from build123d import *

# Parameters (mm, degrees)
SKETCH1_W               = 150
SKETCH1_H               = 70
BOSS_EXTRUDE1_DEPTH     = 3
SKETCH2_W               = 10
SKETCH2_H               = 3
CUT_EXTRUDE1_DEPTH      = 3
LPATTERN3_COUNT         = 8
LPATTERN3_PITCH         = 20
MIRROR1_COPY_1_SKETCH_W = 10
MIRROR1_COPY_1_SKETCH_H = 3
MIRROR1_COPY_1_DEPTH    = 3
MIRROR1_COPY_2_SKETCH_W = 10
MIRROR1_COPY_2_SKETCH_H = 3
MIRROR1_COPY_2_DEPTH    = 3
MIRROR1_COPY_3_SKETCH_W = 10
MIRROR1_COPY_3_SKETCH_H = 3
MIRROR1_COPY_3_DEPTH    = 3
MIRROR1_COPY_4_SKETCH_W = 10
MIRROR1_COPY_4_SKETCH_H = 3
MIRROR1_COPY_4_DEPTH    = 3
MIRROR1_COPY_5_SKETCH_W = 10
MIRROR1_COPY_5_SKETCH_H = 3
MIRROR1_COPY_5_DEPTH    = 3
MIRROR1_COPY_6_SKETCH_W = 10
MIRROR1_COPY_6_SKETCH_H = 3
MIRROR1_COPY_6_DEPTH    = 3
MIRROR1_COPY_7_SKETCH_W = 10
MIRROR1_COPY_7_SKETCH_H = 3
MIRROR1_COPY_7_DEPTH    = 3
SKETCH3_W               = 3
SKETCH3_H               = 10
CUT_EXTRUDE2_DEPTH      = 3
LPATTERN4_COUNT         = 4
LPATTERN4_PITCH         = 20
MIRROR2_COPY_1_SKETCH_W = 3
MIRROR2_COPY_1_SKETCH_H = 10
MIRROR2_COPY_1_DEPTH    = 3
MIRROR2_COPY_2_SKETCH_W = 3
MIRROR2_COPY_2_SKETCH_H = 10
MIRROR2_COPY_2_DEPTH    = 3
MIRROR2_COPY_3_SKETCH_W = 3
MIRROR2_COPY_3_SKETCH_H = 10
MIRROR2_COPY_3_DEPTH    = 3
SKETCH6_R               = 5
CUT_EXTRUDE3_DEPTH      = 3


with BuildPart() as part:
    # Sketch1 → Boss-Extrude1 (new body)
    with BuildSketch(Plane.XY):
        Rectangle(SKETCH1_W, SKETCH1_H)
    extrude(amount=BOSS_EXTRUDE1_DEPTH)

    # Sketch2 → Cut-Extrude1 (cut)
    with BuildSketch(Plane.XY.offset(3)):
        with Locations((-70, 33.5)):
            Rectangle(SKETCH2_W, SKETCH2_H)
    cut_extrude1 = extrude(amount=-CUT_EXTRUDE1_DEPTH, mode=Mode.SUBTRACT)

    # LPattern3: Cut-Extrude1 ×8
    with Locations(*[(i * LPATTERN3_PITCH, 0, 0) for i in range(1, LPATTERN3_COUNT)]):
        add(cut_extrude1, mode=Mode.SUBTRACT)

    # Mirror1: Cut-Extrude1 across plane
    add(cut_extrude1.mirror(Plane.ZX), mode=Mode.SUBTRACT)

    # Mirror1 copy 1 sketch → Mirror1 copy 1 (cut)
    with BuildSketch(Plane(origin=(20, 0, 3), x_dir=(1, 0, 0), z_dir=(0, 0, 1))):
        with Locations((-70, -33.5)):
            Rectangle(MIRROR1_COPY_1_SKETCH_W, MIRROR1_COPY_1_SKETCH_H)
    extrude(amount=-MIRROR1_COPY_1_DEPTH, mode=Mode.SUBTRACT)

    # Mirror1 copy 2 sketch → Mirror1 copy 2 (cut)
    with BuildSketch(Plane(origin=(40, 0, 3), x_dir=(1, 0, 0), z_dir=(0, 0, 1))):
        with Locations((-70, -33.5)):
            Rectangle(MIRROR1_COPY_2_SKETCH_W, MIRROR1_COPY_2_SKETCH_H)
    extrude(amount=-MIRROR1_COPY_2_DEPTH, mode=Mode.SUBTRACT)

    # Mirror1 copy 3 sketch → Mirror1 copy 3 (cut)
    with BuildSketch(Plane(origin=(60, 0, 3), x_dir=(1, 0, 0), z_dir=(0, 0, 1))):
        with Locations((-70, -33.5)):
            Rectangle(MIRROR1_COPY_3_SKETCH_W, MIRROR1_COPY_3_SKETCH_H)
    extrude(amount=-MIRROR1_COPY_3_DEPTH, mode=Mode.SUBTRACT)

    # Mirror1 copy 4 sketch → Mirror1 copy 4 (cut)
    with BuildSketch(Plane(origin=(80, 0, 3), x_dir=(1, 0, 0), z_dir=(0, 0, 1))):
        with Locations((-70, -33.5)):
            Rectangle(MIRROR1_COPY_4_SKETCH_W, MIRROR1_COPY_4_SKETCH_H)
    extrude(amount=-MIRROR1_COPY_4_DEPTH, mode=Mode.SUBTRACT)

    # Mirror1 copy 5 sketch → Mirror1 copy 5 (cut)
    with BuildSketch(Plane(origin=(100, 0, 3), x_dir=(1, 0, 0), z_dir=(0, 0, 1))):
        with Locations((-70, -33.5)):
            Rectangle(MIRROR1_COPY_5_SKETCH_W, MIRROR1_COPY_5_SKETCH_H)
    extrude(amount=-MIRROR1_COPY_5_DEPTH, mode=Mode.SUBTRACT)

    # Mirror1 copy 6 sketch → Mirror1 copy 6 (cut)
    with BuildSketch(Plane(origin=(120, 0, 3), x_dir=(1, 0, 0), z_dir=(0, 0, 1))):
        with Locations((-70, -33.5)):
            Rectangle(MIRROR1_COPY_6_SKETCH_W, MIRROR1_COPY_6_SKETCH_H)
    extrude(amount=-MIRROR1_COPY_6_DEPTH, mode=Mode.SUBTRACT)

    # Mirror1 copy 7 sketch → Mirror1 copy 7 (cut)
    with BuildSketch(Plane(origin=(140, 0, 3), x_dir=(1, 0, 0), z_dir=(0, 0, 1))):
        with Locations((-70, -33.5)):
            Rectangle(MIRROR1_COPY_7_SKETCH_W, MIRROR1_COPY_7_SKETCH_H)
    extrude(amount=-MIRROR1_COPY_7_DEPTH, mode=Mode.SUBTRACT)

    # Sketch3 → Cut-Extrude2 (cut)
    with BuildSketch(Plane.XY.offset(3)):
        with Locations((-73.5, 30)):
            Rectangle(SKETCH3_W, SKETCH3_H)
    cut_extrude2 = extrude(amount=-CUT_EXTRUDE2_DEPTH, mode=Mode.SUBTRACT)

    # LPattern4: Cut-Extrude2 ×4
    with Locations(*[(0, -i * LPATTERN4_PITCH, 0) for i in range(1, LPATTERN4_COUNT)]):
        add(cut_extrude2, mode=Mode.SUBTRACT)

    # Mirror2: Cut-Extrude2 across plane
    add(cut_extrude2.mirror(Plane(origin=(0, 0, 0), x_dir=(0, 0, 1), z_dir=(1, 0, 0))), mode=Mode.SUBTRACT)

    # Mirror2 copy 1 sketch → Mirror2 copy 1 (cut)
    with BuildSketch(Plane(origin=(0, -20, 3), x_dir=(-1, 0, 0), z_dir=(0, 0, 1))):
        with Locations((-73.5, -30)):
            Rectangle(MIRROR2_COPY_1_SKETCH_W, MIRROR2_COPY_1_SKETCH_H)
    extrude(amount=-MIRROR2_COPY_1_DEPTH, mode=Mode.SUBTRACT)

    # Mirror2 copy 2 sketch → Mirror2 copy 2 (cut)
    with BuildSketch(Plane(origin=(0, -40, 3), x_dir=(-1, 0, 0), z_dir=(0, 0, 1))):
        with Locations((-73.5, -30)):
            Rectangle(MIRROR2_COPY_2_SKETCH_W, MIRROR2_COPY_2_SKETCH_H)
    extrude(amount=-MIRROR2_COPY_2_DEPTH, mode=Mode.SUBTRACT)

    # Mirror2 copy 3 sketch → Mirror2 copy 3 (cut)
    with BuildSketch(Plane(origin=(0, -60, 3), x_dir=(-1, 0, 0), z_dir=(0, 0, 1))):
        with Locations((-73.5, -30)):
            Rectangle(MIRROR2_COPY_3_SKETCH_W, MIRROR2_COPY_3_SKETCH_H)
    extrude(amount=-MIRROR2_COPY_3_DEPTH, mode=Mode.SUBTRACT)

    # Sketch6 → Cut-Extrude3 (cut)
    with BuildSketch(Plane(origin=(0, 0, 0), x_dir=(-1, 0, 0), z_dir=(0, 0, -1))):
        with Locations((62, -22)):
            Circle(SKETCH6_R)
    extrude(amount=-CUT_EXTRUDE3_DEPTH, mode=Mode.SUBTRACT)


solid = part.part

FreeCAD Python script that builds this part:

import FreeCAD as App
import Part
import Sketcher
Q = App.Units.Quantity


def add_polygon(sketch, points):
    """Adds a closed chain of lines whose ends are joined by coincident constraints."""
    first, n = sketch.GeometryCount, len(points)
    for a, b in zip(points, points[1:] + points[:1]):
        sketch.addGeometry(Part.LineSegment(App.Vector(*a, 0), App.Vector(*b, 0)), False)
    for i in range(n):
        sketch.addConstraint(Sketcher.Constraint("Coincident", first + i, 2, first + (i + 1) % n, 1))

doc = App.newDocument("Part")
body = doc.addObject("PartDesign::Body", "Body")

sketch1 = body.newObject("Sketcher::SketchObject", "Sketch")
sketch1.AttachmentSupport = (doc.getObject("XY_Plane"), [""])
sketch1.MapMode = "FlatFace"
add_polygon(sketch1, [(-75, 35), (-75, -35), (75, -35), (75, 35)])
sketch1.addConstraint([
    Sketcher.Constraint("Vertical", 0),
    Sketcher.Constraint("Horizontal", 1),
    Sketcher.Constraint("Vertical", 2),
    Sketcher.Constraint("Horizontal", 3),
    Sketcher.Constraint("Symmetric", 0, 2, 2, 2, -1, 1),
    Sketcher.Constraint("DistanceX", 1, 1, 1, 2, Q("150 mm")),
    Sketcher.Constraint("DistanceY", 0, 2, 0, 1, Q("70 mm")),
])
pad1 = body.newObject("PartDesign::Pad", "Pad")
pad1.Profile = sketch1
pad1.Length = 3

sketch2 = body.newObject("Sketcher::SketchObject", "Sketch001")
sketch2.AttachmentSupport = (doc.getObject("XY_Plane"), [""])
sketch2.MapMode = "FlatFace"
sketch2.AttachmentOffset = App.Placement(App.Vector(0, 0, 3), App.Rotation())
add_polygon(sketch2, [(-75, 35), (-75, 32), (-65, 32), (-65, 35)])
sketch2.addConstraint([
    Sketcher.Constraint("Vertical", 0),
    Sketcher.Constraint("Horizontal", 1),
    Sketcher.Constraint("Vertical", 2),
    Sketcher.Constraint("Horizontal", 3),
    Sketcher.Constraint("DistanceX", 1, 1, 1, 2, Q("10 mm")),
    Sketcher.Constraint("DistanceY", 0, 2, 0, 1, Q("3 mm")),
    Sketcher.Constraint("DistanceX", 0, 2, -1, 1, Q("75 mm")),
    Sketcher.Constraint("DistanceY", -1, 1, 0, 2, Q("32 mm")),
])
pocket1 = body.newObject("PartDesign::Pocket", "Pocket")
pocket1.Profile = sketch2
pocket1.Length = 3
doc.recompute()

linearpattern = body.newObject("PartDesign::LinearPattern", "LinearPattern")
linearpattern.Originals = [pocket1]
linearpattern.Direction = (doc.getObject("X_Axis"), [""])
linearpattern.Mode = "offset"
linearpattern.Offset = 20
linearpattern.Occurrences = 8
body.Tip = linearpattern
doc.recompute()

mirrored = body.newObject("PartDesign::Mirrored", "Mirrored")
mirrored.Originals = [pocket1]
mirrored.MirrorPlane = (doc.getObject("XZ_Plane"), [""])
body.Tip = mirrored

sketch3 = body.newObject("Sketcher::SketchObject", "Sketch002")
sketch3.AttachmentSupport = (doc.getObject("XY_Plane"), [""])
sketch3.MapMode = "FlatFace"
sketch3.AttachmentOffset = App.Placement(App.Vector(0, 0, 3), App.Rotation())
add_polygon(sketch3, [(-55, -32), (-55, -35), (-45, -35), (-45, -32)])
sketch3.addConstraint([
    Sketcher.Constraint("Vertical", 0),
    Sketcher.Constraint("Horizontal", 1),
    Sketcher.Constraint("Vertical", 2),
    Sketcher.Constraint("Horizontal", 3),
    Sketcher.Constraint("DistanceX", 1, 1, 1, 2, Q("10 mm")),
    Sketcher.Constraint("DistanceY", 0, 2, 0, 1, Q("3 mm")),
    Sketcher.Constraint("DistanceX", 0, 2, -1, 1, Q("55 mm")),
    Sketcher.Constraint("DistanceY", 0, 2, -1, 1, Q("35 mm")),
])
pocket2 = body.newObject("PartDesign::Pocket", "Pocket001")
pocket2.Profile = sketch3
pocket2.Length = 3

sketch4 = body.newObject("Sketcher::SketchObject", "Sketch003")
sketch4.AttachmentSupport = (doc.getObject("XY_Plane"), [""])
sketch4.MapMode = "FlatFace"
sketch4.AttachmentOffset = App.Placement(App.Vector(0, 0, 3), App.Rotation())
add_polygon(sketch4, [(-35, -32), (-35, -35), (-25, -35), (-25, -32)])
sketch4.addConstraint([
    Sketcher.Constraint("Vertical", 0),
    Sketcher.Constraint("Horizontal", 1),
    Sketcher.Constraint("Vertical", 2),
    Sketcher.Constraint("Horizontal", 3),
    Sketcher.Constraint("DistanceX", 1, 1, 1, 2, Q("10 mm")),
    Sketcher.Constraint("DistanceY", 0, 2, 0, 1, Q("3 mm")),
    Sketcher.Constraint("DistanceX", 0, 2, -1, 1, Q("35 mm")),
    Sketcher.Constraint("DistanceY", 0, 2, -1, 1, Q("35 mm")),
])
pocket3 = body.newObject("PartDesign::Pocket", "Pocket002")
pocket3.Profile = sketch4
pocket3.Length = 3

sketch5 = body.newObject("Sketcher::SketchObject", "Sketch004")
sketch5.AttachmentSupport = (doc.getObject("XY_Plane"), [""])
sketch5.MapMode = "FlatFace"
sketch5.AttachmentOffset = App.Placement(App.Vector(0, 0, 3), App.Rotation())
add_polygon(sketch5, [(-15, -32), (-15, -35), (-5, -35), (-5, -32)])
sketch5.addConstraint([
    Sketcher.Constraint("Vertical", 0),
    Sketcher.Constraint("Horizontal", 1),
    Sketcher.Constraint("Vertical", 2),
    Sketcher.Constraint("Horizontal", 3),
    Sketcher.Constraint("DistanceX", 1, 1, 1, 2, Q("10 mm")),
    Sketcher.Constraint("DistanceY", 0, 2, 0, 1, Q("3 mm")),
    Sketcher.Constraint("DistanceX", 0, 2, -1, 1, Q("15 mm")),
    Sketcher.Constraint("DistanceY", 0, 2, -1, 1, Q("35 mm")),
])
pocket4 = body.newObject("PartDesign::Pocket", "Pocket003")
pocket4.Profile = sketch5
pocket4.Length = 3

sketch6 = body.newObject("Sketcher::SketchObject", "Sketch005")
sketch6.AttachmentSupport = (doc.getObject("XY_Plane"), [""])
sketch6.MapMode = "FlatFace"
sketch6.AttachmentOffset = App.Placement(App.Vector(0, 0, 3), App.Rotation())
add_polygon(sketch6, [(5, -32), (5, -35), (15, -35), (15, -32)])
sketch6.addConstraint([
    Sketcher.Constraint("Vertical", 0),
    Sketcher.Constraint("Horizontal", 1),
    Sketcher.Constraint("Vertical", 2),
    Sketcher.Constraint("Horizontal", 3),
    Sketcher.Constraint("DistanceX", 1, 1, 1, 2, Q("10 mm")),
    Sketcher.Constraint("DistanceY", 0, 2, 0, 1, Q("3 mm")),
    Sketcher.Constraint("DistanceX", -1, 1, 0, 2, Q("5 mm")),
    Sketcher.Constraint("DistanceY", 0, 2, -1, 1, Q("35 mm")),
])
pocket5 = body.newObject("PartDesign::Pocket", "Pocket004")
pocket5.Profile = sketch6
pocket5.Length = 3

sketch7 = body.newObject("Sketcher::SketchObject", "Sketch006")
sketch7.AttachmentSupport = (doc.getObject("XY_Plane"), [""])
sketch7.MapMode = "FlatFace"
sketch7.AttachmentOffset = App.Placement(App.Vector(0, 0, 3), App.Rotation())
add_polygon(sketch7, [(25, -32), (25, -35), (35, -35), (35, -32)])
sketch7.addConstraint([
    Sketcher.Constraint("Vertical", 0),
    Sketcher.Constraint("Horizontal", 1),
    Sketcher.Constraint("Vertical", 2),
    Sketcher.Constraint("Horizontal", 3),
    Sketcher.Constraint("DistanceX", 1, 1, 1, 2, Q("10 mm")),
    Sketcher.Constraint("DistanceY", 0, 2, 0, 1, Q("3 mm")),
    Sketcher.Constraint("DistanceX", -1, 1, 0, 2, Q("25 mm")),
    Sketcher.Constraint("DistanceY", 0, 2, -1, 1, Q("35 mm")),
])
pocket6 = body.newObject("PartDesign::Pocket", "Pocket005")
pocket6.Profile = sketch7
pocket6.Length = 3

sketch8 = body.newObject("Sketcher::SketchObject", "Sketch007")
sketch8.AttachmentSupport = (doc.getObject("XY_Plane"), [""])
sketch8.MapMode = "FlatFace"
sketch8.AttachmentOffset = App.Placement(App.Vector(0, 0, 3), App.Rotation())
add_polygon(sketch8, [(45, -32), (45, -35), (55, -35), (55, -32)])
sketch8.addConstraint([
    Sketcher.Constraint("Vertical", 0),
    Sketcher.Constraint("Horizontal", 1),
    Sketcher.Constraint("Vertical", 2),
    Sketcher.Constraint("Horizontal", 3),
    Sketcher.Constraint("DistanceX", 1, 1, 1, 2, Q("10 mm")),
    Sketcher.Constraint("DistanceY", 0, 2, 0, 1, Q("3 mm")),
    Sketcher.Constraint("DistanceX", -1, 1, 0, 2, Q("45 mm")),
    Sketcher.Constraint("DistanceY", 0, 2, -1, 1, Q("35 mm")),
])
pocket7 = body.newObject("PartDesign::Pocket", "Pocket006")
pocket7.Profile = sketch8
pocket7.Length = 3

sketch9 = body.newObject("Sketcher::SketchObject", "Sketch008")
sketch9.AttachmentSupport = (doc.getObject("XY_Plane"), [""])
sketch9.MapMode = "FlatFace"
sketch9.AttachmentOffset = App.Placement(App.Vector(0, 0, 3), App.Rotation())
add_polygon(sketch9, [(65, -32), (65, -35), (75, -35), (75, -32)])
sketch9.addConstraint([
    Sketcher.Constraint("Vertical", 0),
    Sketcher.Constraint("Horizontal", 1),
    Sketcher.Constraint("Vertical", 2),
    Sketcher.Constraint("Horizontal", 3),
    Sketcher.Constraint("DistanceX", 1, 1, 1, 2, Q("10 mm")),
    Sketcher.Constraint("DistanceY", 0, 2, 0, 1, Q("3 mm")),
    Sketcher.Constraint("DistanceX", -1, 1, 0, 2, Q("65 mm")),
    Sketcher.Constraint("DistanceY", 0, 2, -1, 1, Q("35 mm")),
])
pocket8 = body.newObject("PartDesign::Pocket", "Pocket007")
pocket8.Profile = sketch9
pocket8.Length = 3

sketch10 = body.newObject("Sketcher::SketchObject", "Sketch009")
sketch10.AttachmentSupport = (doc.getObject("XY_Plane"), [""])
sketch10.MapMode = "FlatFace"
sketch10.AttachmentOffset = App.Placement(App.Vector(0, 0, 3), App.Rotation())
add_polygon(sketch10, [(-75, 35), (-75, 25), (-72, 25), (-72, 35)])
sketch10.addConstraint([
    Sketcher.Constraint("Vertical", 0),
    Sketcher.Constraint("Horizontal", 1),
    Sketcher.Constraint("Vertical", 2),
    Sketcher.Constraint("Horizontal", 3),
    Sketcher.Constraint("DistanceX", 1, 1, 1, 2, Q("3 mm")),
    Sketcher.Constraint("DistanceY", 0, 2, 0, 1, Q("10 mm")),
    Sketcher.Constraint("DistanceX", 0, 2, -1, 1, Q("75 mm")),
    Sketcher.Constraint("DistanceY", -1, 1, 0, 2, Q("25 mm")),
])
pocket9 = body.newObject("PartDesign::Pocket", "Pocket008")
pocket9.Profile = sketch10
pocket9.Length = 3
doc.recompute()

linearpattern2 = body.newObject("PartDesign::LinearPattern", "LinearPattern001")
linearpattern2.Originals = [pocket9]
linearpattern2.Direction = (doc.getObject("Y_Axis"), [""])
linearpattern2.Mode = "offset"
linearpattern2.Offset = 20
linearpattern2.Occurrences = 4
linearpattern2.Reversed = True
body.Tip = linearpattern2
doc.recompute()

mirrored2 = body.newObject("PartDesign::Mirrored", "Mirrored001")
mirrored2.Originals = [pocket9]
mirrored2.MirrorPlane = (doc.getObject("YZ_Plane"), [""])
body.Tip = mirrored2

sketch11 = body.newObject("Sketcher::SketchObject", "Sketch010")
sketch11.AttachmentSupport = (doc.getObject("XY_Plane"), [""])
sketch11.MapMode = "FlatFace"
sketch11.AttachmentOffset = App.Placement(App.Vector(0, 0, 3), App.Rotation())
add_polygon(sketch11, [(75, 5), (75, 15), (72, 15), (72, 5)])
sketch11.addConstraint([
    Sketcher.Constraint("Vertical", 0),
    Sketcher.Constraint("Horizontal", 1),
    Sketcher.Constraint("Vertical", 2),
    Sketcher.Constraint("Horizontal", 3),
    Sketcher.Constraint("DistanceX", 1, 2, 1, 1, Q("3 mm")),
    Sketcher.Constraint("DistanceY", 0, 1, 0, 2, Q("10 mm")),
    Sketcher.Constraint("DistanceX", -1, 1, 0, 2, Q("75 mm")),
    Sketcher.Constraint("DistanceY", -1, 1, 0, 2, Q("15 mm")),
])
pocket10 = body.newObject("PartDesign::Pocket", "Pocket009")
pocket10.Profile = sketch11
pocket10.Length = 3

sketch12 = body.newObject("Sketcher::SketchObject", "Sketch011")
sketch12.AttachmentSupport = (doc.getObject("XY_Plane"), [""])
sketch12.MapMode = "FlatFace"
sketch12.AttachmentOffset = App.Placement(App.Vector(0, 0, 3), App.Rotation())
add_polygon(sketch12, [(75, -15), (75, -5), (72, -5), (72, -15)])
sketch12.addConstraint([
    Sketcher.Constraint("Vertical", 0),
    Sketcher.Constraint("Horizontal", 1),
    Sketcher.Constraint("Vertical", 2),
    Sketcher.Constraint("Horizontal", 3),
    Sketcher.Constraint("DistanceX", 1, 2, 1, 1, Q("3 mm")),
    Sketcher.Constraint("DistanceY", 0, 1, 0, 2, Q("10 mm")),
    Sketcher.Constraint("DistanceX", -1, 1, 0, 2, Q("75 mm")),
    Sketcher.Constraint("DistanceY", 0, 2, -1, 1, Q("5 mm")),
])
pocket11 = body.newObject("PartDesign::Pocket", "Pocket010")
pocket11.Profile = sketch12
pocket11.Length = 3

sketch13 = body.newObject("Sketcher::SketchObject", "Sketch012")
sketch13.AttachmentSupport = (doc.getObject("XY_Plane"), [""])
sketch13.MapMode = "FlatFace"
sketch13.AttachmentOffset = App.Placement(App.Vector(0, 0, 3), App.Rotation())
add_polygon(sketch13, [(75, -35), (75, -25), (72, -25), (72, -35)])
sketch13.addConstraint([
    Sketcher.Constraint("Vertical", 0),
    Sketcher.Constraint("Horizontal", 1),
    Sketcher.Constraint("Vertical", 2),
    Sketcher.Constraint("Horizontal", 3),
    Sketcher.Constraint("DistanceX", 1, 2, 1, 1, Q("3 mm")),
    Sketcher.Constraint("DistanceY", 0, 1, 0, 2, Q("10 mm")),
    Sketcher.Constraint("DistanceX", -1, 1, 0, 2, Q("75 mm")),
    Sketcher.Constraint("DistanceY", 0, 2, -1, 1, Q("25 mm")),
])
pocket12 = body.newObject("PartDesign::Pocket", "Pocket011")
pocket12.Profile = sketch13
pocket12.Length = 3

sketch14 = body.newObject("Sketcher::SketchObject", "Sketch013")
sketch14.AttachmentSupport = (doc.getObject("XY_Plane"), [""])
sketch14.MapMode = "FlatFace"
sketch14.addGeometry(Part.Circle(App.Vector(-62, -22, 0), App.Vector(0, 0, 1), 5), False)
sketch14.addConstraint([
    Sketcher.Constraint("Diameter", 0, Q("10 mm")),
    Sketcher.Constraint("DistanceX", 0, 3, -1, 1, Q("62 mm")),
    Sketcher.Constraint("DistanceY", 0, 3, -1, 1, Q("22 mm")),
])
pocket13 = body.newObject("PartDesign::Pocket", "Pocket012")
pocket13.Profile = sketch14
pocket13.Length = 3
pocket13.Reversed = True

doc.recompute()
